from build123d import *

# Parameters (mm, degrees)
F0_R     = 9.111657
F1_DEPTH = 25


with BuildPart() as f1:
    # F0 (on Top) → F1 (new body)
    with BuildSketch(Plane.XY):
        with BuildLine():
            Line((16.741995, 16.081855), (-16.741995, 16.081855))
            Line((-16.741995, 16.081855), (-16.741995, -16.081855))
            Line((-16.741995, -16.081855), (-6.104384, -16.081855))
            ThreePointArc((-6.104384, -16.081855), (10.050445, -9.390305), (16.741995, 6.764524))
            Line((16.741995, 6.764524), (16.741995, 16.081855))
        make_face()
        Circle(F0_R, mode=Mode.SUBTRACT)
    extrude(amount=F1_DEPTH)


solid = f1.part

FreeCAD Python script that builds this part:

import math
import FreeCAD as App
import Part
import Sketcher

V = App.Vector
Q = App.Units.Quantity

doc = App.newDocument("Part")
params = doc.addObject("Spreadsheet::Sheet", "Params")
for row, (alias, value) in enumerate([
    ("pad1_length", "25 mm"),
], start=1):
    params.set(f"A{row}", alias)
    params.set(f"B{row}", "=" + value)
    params.setAlias(f"B{row}", alias)

body = doc.addObject("PartDesign::Body", "Body")

sketch1 = doc.addObject("Sketcher::SketchObject", "Sketch")
body.addObject(sketch1)
sketch1.AttachmentSupport = (doc.XY_Plane, [""])
sketch1.MapMode = "FlatFace"
sketch1.addGeometry([
    Part.LineSegment(V(16.741995, 16.081855, 0), V(-16.741995, 16.081855, 0)),
    Part.LineSegment(V(-16.741995, 16.081855, 0), V(-16.741995, -16.081855, 0)),
    Part.LineSegment(V(-16.741995, -16.081855, 0), V(-6.104384, -16.081855, 0)),
    Part.ArcOfCircle(Part.Circle(V(-6.104386, 6.764526, 0), V(0, 0, 1), 22.846381), math.radians(-89.999996), math.radians(-0.000004)),
    Part.LineSegment(V(16.741995, 6.764524, 0), V(16.741995, 16.081855, 0)),
    Part.Circle(V(0, 0, 0), V(0, 0, 1), 9.111657),
], False)
sketch1.addConstraint([
    Sketcher.Constraint("Coincident", 0, 2, 1, 1),
    Sketcher.Constraint("Coincident", 1, 2, 2, 1),
    Sketcher.Constraint("Tangent", 2, 2, 3, 1),
    Sketcher.Constraint("Tangent", 3, 2, 4, 1),
    Sketcher.Constraint("Coincident", 4, 2, 0, 1),
    Sketcher.Constraint("Horizontal", 0),
    Sketcher.Constraint("Vertical", 1),
    Sketcher.Constraint("Horizontal", 2),
    Sketcher.Constraint("Vertical", 4),
    Sketcher.Constraint("Coincident", 5, 3, -1, 1),
    Sketcher.Constraint("Symmetric", 1, 2, 4, 2, -1, 1),
    Sketcher.Constraint("Radius", 3, Q("22.846381 mm")),
    Sketcher.Constraint("Diameter", 5, Q("18.223314 mm")),
    Sketcher.Constraint("DistanceX", 0, 2, 0, 1, Q("33.48399 mm")),
    Sketcher.Constraint("DistanceY", 1, 2, 1, 1, Q("32.16371 mm")),
])
pad1 = doc.addObject("PartDesign::Pad", "Pad")
body.addObject(pad1)
pad1.Profile = sketch1
pad1.setExpression("Length", "Params.pad1_length")

doc.recompute()
